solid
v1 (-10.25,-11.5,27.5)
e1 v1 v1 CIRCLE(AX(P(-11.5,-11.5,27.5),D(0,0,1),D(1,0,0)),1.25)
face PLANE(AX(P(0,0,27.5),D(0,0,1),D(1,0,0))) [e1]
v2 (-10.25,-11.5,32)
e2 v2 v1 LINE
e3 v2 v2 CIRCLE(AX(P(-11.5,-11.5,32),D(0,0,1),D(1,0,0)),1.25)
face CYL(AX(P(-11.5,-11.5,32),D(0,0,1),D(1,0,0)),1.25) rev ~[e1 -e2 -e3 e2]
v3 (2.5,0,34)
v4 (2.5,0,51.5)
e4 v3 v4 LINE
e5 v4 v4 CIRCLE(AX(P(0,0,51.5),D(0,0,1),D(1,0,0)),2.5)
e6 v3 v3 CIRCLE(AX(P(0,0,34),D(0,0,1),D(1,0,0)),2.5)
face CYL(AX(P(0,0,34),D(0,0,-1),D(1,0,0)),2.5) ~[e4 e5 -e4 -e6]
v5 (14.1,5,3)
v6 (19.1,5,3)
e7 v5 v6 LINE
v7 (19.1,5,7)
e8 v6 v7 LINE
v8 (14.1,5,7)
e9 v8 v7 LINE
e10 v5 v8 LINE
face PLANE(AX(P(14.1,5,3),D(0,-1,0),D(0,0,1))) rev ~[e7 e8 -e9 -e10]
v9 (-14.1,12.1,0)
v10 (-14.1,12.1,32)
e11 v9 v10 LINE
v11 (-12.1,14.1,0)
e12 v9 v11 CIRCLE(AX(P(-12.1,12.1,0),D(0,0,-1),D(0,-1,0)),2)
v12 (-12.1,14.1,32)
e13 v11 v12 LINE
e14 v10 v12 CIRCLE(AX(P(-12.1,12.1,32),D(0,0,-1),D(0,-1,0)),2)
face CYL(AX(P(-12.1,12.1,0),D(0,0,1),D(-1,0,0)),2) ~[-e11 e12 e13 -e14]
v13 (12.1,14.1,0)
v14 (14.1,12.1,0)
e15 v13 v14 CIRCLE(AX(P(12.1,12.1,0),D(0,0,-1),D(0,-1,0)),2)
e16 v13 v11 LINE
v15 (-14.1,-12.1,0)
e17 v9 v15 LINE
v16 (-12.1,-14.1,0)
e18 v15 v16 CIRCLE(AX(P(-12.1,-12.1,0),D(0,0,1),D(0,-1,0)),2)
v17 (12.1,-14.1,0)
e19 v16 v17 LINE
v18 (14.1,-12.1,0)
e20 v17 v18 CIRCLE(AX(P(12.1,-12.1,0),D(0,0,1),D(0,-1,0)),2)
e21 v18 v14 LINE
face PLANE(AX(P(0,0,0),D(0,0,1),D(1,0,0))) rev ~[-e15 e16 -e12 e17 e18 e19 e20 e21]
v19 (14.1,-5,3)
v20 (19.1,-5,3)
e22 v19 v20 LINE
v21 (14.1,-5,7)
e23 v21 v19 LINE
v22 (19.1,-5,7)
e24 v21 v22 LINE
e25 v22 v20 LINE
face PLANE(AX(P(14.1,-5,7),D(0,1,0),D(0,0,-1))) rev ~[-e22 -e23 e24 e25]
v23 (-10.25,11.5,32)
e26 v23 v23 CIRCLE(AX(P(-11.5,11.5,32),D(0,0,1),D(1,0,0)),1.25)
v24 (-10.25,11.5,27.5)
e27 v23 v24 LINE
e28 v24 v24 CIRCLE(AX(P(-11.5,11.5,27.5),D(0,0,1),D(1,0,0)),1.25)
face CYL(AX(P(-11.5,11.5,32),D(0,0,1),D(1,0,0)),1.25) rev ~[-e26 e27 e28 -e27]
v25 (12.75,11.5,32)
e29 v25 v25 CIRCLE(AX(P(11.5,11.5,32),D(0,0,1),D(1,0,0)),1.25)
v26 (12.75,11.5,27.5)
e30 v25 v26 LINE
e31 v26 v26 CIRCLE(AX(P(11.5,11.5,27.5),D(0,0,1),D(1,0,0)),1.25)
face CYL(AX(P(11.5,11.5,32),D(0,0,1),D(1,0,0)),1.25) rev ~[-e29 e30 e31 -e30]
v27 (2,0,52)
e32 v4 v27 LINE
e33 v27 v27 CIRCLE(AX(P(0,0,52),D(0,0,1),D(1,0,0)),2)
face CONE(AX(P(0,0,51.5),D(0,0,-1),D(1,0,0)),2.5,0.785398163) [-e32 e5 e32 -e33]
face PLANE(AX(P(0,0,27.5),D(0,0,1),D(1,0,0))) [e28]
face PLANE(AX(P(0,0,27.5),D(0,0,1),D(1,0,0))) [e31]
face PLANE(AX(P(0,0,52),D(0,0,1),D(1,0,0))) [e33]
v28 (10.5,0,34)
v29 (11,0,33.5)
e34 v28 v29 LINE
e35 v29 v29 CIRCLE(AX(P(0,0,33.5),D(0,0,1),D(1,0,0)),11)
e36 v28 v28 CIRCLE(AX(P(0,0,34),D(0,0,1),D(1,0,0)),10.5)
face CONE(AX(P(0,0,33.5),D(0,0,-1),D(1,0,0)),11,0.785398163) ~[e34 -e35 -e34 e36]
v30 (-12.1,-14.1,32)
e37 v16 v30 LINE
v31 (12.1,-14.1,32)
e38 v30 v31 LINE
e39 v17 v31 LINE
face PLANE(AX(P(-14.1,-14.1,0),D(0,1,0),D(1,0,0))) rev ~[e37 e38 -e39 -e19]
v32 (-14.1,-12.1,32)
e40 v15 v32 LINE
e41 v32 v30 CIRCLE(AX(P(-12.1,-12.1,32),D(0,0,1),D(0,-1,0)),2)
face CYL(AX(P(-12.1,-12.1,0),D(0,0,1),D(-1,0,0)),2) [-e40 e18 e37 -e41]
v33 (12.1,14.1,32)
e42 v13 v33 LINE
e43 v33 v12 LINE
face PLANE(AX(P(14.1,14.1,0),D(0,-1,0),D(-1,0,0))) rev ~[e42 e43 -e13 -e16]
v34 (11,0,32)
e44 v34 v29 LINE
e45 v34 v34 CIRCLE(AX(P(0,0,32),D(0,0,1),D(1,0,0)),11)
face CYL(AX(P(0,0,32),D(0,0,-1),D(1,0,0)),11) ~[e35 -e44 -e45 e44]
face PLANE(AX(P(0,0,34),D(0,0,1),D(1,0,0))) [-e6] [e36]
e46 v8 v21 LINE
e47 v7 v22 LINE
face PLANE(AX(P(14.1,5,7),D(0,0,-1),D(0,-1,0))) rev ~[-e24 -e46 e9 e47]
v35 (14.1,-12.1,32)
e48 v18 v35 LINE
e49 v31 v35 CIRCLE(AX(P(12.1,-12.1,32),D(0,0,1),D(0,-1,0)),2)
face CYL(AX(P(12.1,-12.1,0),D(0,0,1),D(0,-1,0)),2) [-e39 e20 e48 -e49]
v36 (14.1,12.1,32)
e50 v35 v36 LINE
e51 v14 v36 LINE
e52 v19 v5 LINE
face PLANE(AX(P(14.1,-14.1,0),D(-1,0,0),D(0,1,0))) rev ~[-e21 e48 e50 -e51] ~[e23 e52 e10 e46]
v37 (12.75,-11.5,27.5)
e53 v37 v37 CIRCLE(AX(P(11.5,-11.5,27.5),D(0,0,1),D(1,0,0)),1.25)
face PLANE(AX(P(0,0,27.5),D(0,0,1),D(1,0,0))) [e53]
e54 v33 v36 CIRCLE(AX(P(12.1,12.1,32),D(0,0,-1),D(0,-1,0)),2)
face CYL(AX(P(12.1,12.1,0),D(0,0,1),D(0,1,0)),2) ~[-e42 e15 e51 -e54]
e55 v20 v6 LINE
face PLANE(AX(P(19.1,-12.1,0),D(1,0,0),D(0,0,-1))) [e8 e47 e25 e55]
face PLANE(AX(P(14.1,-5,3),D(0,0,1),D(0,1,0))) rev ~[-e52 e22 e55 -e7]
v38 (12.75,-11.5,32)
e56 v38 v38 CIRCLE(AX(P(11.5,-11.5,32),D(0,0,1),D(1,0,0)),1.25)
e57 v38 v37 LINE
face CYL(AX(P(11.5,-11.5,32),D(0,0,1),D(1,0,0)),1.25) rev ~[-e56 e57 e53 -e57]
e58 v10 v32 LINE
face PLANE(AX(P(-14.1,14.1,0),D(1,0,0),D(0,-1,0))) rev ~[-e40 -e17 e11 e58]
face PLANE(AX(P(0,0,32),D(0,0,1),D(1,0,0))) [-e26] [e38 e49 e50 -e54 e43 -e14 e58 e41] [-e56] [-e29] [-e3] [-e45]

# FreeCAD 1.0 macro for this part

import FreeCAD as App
import Part
import Sketcher
from FreeCAD import Vector
Q = App.Units.Quantity


def edges_at(feature, points):
    """Names of the edges that pass closest to the given points."""
    edges = feature.Shape.Edges
    near = lambda p: min(range(len(edges)), key=lambda i: edges[i].distToShape(Part.Vertex(*p))[0])
    return sorted({f"Edge{near(p) + 1}" for p in points})


def add_polygon(sketch, points):
    """Adds a closed chain of lines whose ends are joined by coincident constraints."""
    first, n = sketch.GeometryCount, len(points)
    for a, b in zip(points, points[1:] + points[:1]):
        sketch.addGeometry(Part.LineSegment(App.Vector(*a, 0), App.Vector(*b, 0)), False)
    for i in range(n):
        sketch.addConstraint(Sketcher.Constraint("Coincident", first + i, 2, first + (i + 1) % n, 1))

doc = App.newDocument("Part")
body = doc.addObject("PartDesign::Body", "Body")

# Sketch on XY plane
sketch1 = body.newObject("Sketcher::SketchObject", "Sketch")
sketch1.AttachmentSupport = (doc.getObject("XY_Plane"), [""])
sketch1.MapMode = "FlatFace"
add_polygon(sketch1, [(-14, 14), (-14, -14), (14, -14), (14, 14)])  # lines 0-3
sketch1.addConstraint([
    Sketcher.Constraint("Vertical", 0),
    Sketcher.Constraint("Horizontal", 1),
    Sketcher.Constraint("Vertical", 2),
    Sketcher.Constraint("Horizontal", 3),
    Sketcher.Constraint("Symmetric", 0, 2, 2, 2, -1, 1),
    Sketcher.Constraint("Equal", 3, 0),
    Sketcher.Constraint("DistanceX", 1, 1, 1, 2, Q("28.2 mm")),
])
pad1 = body.newObject("PartDesign::Pad", "Pad")
pad1.Profile = sketch1
pad1.Length = 32

# Sketch on XY plane
sketch2 = body.newObject("Sketcher::SketchObject", "Sketch001")
sketch2.AttachmentSupport = (doc.getObject("XY_Plane"), [""])
sketch2.MapMode = "FlatFace"
sketch2.AttachmentOffset = App.Placement(Vector(0, 0, 32), App.Rotation())
sketch2.addGeometry([
    Part.Circle(Vector(-11.5, 11.5, 0), Vector(0, 0, 1), 1.2),
    Part.Circle(Vector(-11.5, -11.5, 0), Vector(0, 0, 1), 1.2),
    Part.Circle(Vector(11.5, -11.5, 0), Vector(0, 0, 1), 1.2),
    Part.Circle(Vector(11.5, 11.5, 0), Vector(0, 0, 1), 1.2),
], False)
sketch2.addConstraint([
    Sketcher.Constraint("Equal", 0, 1),
    Sketcher.Constraint("Equal", 1, 2),
    Sketcher.Constraint("Equal", 2, 3),
    Sketcher.Constraint("Symmetric", 0, 3, 2, 3, -1, 1),
    Sketcher.Constraint("Symmetric", 1, 3, 3, 3, -1, 1),
    Sketcher.Constraint("Symmetric", 1, 3, 2, 3, -2),
    Sketcher.Constraint("Diameter", 0, Q("2.5 mm")),
    Sketcher.Constraint("DistanceY", 1, 3, 0, 3, Q("23 mm")),
    Sketcher.Constraint("DistanceX", 1, 3, 2, 3, Q("23 mm")),
])
pocket1 = body.newObject("PartDesign::Pocket", "Pocket")
pocket1.Profile = sketch2
pocket1.Length = 4.5

# Sketch on XY plane
sketch3 = body.newObject("Sketcher::SketchObject", "Sketch002")
sketch3.AttachmentSupport = (doc.getObject("XY_Plane"), [""])
sketch3.MapMode = "FlatFace"
sketch3.AttachmentOffset = App.Placement(Vector(0, 0, 32), App.Rotation())
sketch3.addGeometry(Part.Circle(Vector(0, 0, 0), Vector(0, 0, 1), 11), False)
sketch3.addConstraint([
    Sketcher.Constraint("Coincident", 0, 3, -1, 1),
    Sketcher.Constraint("Diameter", 0, Q("22 mm")),
])
pad2 = body.newObject("PartDesign::Pad", "Pad001")
pad2.Profile = sketch3
pad2.Length = 2

# Sketch on XY plane
sketch4 = body.newObject("Sketcher::SketchObject", "Sketch003")
sketch4.AttachmentSupport = (doc.getObject("XY_Plane"), [""])
sketch4.MapMode = "FlatFace"
sketch4.AttachmentOffset = App.Placement(Vector(0, 0, 34), App.Rotation())
sketch4.addGeometry(Part.Circle(Vector(0, 0, 0), Vector(0, 0, 1), 2.5), False)
sketch4.addConstraint([
    Sketcher.Constraint("Coincident", 0, 3, -1, 1),
    Sketcher.Constraint("Diameter", 0, Q("5 mm")),
])
pad3 = body.newObject("PartDesign::Pad", "Pad002")
pad3.Profile = sketch4
pad3.Length = 18
doc.recompute()

fillet = body.newObject("PartDesign::Fillet", "Fillet")
fillet.Base = (pad3, edges_at(pad3, [
    (-14.1, 14.1, 16),
    (14.1, 14.1, 16),
    (14.1, -14.1, 16),
    (-14.1, -14.1, 16),
]))
fillet.Radius = 2
doc.recompute()

chamfer = body.newObject("PartDesign::Chamfer", "Chamfer")
chamfer.Base = (fillet, edges_at(fillet, [(-2.5, 0, 52)]))
chamfer.Size = 0.5
doc.recompute()

chamfer2 = body.newObject("PartDesign::Chamfer", "Chamfer001")
chamfer2.Base = (chamfer, edges_at(chamfer, [(-11, 0, 34)]))
chamfer2.Size = 0.5

# Sketch on YZ plane
sketch5 = body.newObject("Sketcher::SketchObject", "Sketch004")
sketch5.AttachmentSupport = (doc.getObject("YZ_Plane"), [""])
sketch5.MapMode = "FlatFace"
sketch5.AttachmentOffset = App.Placement(Vector(0, 0, 14.1), App.Rotation())
add_polygon(sketch5, [(5, 7), (-5, 7), (-5, 3), (5, 3)])  # lines 0-3
sketch5.addConstraint([
    Sketcher.Constraint("Horizontal", 0),
    Sketcher.Constraint("Vertical", 1),
    Sketcher.Constraint("Horizontal", 2),
    Sketcher.Constraint("Vertical", 3),
    Sketcher.Constraint("DistanceX", 0, 2, 0, 1, Q("10 mm")),
    Sketcher.Constraint("DistanceY", 1, 2, 1, 1, Q("4 mm")),
    Sketcher.Constraint("DistanceX", 0, 2, -1, 1, Q("5 mm")),
    Sketcher.Constraint("DistanceY", -1, 1, 0, 2, Q("7 mm")),
])
pad4 = body.newObject("PartDesign::Pad", "Pad003")
pad4.Profile = sketch5
pad4.Length = 5

doc.recompute()
